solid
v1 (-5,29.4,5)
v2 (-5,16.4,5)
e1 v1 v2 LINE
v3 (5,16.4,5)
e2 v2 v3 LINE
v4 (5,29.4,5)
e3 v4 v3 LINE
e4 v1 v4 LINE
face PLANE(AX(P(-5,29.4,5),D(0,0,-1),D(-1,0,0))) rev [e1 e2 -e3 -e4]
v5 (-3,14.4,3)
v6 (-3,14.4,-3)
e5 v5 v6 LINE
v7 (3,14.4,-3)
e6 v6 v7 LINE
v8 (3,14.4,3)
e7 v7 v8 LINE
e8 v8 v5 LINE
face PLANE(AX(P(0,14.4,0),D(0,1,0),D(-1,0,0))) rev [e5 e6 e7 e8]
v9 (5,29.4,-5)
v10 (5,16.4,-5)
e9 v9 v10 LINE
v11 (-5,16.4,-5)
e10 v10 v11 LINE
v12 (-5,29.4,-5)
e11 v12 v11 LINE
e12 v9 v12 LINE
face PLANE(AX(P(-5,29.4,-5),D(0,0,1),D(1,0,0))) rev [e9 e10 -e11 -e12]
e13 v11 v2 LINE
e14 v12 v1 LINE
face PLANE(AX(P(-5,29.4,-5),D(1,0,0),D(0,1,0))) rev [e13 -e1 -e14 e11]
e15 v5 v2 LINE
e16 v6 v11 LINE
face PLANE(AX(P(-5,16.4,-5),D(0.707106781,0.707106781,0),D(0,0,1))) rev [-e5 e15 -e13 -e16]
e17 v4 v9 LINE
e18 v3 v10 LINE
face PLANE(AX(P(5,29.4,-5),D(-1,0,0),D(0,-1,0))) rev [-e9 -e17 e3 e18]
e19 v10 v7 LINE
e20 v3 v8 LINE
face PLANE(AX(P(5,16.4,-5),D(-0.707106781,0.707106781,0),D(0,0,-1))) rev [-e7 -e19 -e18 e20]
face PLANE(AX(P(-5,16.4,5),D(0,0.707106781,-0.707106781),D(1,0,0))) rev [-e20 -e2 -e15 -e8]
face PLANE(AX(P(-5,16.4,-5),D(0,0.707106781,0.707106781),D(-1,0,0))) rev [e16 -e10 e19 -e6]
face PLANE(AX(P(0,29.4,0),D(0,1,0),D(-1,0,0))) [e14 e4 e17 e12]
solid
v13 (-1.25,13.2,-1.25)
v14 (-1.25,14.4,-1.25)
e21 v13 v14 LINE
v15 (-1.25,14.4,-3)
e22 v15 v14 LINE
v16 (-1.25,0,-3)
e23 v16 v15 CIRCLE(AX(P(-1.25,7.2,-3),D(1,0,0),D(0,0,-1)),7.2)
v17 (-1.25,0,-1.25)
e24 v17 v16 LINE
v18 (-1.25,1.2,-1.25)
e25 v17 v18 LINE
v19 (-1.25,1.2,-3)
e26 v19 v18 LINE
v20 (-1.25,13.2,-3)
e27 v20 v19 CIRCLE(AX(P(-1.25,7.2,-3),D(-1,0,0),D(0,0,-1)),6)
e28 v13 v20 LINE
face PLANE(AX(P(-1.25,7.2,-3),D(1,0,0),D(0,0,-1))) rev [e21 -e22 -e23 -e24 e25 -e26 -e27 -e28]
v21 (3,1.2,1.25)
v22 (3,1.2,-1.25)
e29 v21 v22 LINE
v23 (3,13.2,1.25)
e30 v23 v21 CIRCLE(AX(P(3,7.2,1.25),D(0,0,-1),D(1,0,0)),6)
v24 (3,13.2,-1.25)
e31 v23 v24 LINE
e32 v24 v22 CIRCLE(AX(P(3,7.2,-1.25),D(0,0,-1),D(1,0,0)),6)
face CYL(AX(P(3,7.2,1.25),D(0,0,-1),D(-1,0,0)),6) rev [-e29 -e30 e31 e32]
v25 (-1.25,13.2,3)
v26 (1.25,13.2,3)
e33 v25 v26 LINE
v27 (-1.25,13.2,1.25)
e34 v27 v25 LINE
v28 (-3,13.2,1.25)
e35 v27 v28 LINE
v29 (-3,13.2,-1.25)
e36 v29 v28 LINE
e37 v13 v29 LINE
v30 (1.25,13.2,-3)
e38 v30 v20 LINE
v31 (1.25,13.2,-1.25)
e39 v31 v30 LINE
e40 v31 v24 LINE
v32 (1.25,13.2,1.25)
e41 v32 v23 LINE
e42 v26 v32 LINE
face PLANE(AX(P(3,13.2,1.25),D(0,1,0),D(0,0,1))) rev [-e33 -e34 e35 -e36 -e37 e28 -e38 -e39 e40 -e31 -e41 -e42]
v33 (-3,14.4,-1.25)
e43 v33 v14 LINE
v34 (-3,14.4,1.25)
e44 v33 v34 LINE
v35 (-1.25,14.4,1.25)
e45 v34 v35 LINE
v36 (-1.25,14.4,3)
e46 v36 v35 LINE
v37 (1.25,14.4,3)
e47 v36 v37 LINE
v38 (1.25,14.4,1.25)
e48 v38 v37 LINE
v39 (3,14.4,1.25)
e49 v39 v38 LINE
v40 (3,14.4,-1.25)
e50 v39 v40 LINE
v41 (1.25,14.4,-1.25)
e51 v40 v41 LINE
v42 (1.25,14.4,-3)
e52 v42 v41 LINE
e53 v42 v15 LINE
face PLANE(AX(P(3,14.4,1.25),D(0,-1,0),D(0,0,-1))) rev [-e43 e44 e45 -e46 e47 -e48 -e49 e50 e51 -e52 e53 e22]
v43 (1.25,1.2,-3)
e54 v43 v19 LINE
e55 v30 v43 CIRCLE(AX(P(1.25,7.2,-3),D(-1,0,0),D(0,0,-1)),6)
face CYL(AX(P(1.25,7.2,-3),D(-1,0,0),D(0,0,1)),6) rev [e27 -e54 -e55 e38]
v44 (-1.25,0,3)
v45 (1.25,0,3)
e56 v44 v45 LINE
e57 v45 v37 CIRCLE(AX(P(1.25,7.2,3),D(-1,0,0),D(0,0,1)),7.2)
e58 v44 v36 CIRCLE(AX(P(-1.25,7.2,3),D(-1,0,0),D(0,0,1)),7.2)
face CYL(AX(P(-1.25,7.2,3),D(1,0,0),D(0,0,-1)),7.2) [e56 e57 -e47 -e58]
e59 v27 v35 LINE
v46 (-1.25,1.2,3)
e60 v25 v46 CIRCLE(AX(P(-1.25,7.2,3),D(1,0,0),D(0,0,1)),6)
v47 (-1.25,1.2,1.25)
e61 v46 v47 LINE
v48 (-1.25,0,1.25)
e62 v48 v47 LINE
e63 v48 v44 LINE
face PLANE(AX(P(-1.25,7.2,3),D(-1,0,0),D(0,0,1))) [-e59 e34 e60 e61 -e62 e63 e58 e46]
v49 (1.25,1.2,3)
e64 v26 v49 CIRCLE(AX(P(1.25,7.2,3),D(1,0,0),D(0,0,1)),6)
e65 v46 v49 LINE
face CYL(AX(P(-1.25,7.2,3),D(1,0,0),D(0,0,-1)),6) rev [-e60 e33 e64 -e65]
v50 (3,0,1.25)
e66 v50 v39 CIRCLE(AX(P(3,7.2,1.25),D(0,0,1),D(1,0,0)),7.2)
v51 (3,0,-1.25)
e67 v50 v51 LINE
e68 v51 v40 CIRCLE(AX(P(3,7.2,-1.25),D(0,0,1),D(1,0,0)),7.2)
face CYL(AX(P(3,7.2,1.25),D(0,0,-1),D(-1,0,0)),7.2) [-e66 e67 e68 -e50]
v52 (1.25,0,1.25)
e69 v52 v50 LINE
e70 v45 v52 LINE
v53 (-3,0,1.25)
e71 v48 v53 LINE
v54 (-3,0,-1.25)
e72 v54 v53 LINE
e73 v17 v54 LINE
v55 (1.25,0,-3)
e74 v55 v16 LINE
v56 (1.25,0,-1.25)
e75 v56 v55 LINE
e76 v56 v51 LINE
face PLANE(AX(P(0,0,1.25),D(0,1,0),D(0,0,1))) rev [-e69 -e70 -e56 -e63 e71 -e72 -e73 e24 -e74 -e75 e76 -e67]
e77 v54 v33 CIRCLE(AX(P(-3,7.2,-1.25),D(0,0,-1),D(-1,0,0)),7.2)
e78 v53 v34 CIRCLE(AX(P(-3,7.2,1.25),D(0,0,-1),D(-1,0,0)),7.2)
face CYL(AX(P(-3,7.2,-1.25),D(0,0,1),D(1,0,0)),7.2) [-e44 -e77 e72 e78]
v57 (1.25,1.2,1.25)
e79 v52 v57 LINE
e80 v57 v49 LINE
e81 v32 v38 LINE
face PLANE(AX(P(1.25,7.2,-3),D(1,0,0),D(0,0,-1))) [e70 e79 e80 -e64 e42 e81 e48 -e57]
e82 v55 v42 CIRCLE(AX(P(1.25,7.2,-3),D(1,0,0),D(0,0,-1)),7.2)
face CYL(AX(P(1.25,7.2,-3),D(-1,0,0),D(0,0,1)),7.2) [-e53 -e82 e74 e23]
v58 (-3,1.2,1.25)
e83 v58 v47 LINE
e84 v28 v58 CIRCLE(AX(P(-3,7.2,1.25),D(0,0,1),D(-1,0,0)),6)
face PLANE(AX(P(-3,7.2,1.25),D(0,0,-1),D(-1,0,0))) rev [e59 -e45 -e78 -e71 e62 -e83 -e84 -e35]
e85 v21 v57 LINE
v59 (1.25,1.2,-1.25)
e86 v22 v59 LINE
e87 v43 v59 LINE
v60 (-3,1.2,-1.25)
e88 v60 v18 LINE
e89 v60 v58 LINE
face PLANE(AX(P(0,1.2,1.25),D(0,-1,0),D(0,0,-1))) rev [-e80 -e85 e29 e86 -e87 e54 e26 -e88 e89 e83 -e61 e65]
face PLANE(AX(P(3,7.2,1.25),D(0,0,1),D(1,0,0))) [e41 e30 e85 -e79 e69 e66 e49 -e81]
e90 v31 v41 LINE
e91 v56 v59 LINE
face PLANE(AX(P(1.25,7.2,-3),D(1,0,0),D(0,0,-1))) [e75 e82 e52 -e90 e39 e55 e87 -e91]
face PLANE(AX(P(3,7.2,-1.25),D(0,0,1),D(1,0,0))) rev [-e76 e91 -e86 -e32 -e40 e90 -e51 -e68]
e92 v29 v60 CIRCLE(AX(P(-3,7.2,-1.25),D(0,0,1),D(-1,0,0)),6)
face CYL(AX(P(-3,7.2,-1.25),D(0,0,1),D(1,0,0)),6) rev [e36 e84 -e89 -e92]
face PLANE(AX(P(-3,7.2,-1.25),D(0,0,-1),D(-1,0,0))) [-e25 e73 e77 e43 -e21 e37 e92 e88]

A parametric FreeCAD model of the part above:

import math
import FreeCAD as App
import Part
import Sketcher
from FreeCAD import Vector
Q = App.Units.Quantity


def edges_at(feature, points):
    """Names of the edges that pass closest to the given points."""
    edges = feature.Shape.Edges
    near = lambda p: min(range(len(edges)), key=lambda i: edges[i].distToShape(Part.Vertex(*p))[0])
    return sorted({f"Edge{near(p) + 1}" for p in points})

doc = App.newDocument("Part")
params = doc.addObject("Spreadsheet::Sheet", "Params")
for row, (alias, value) in enumerate([
    ("sketch1_radius", "6 mm"),
    ("sketch1_radius2", "7.2 mm"),
    ("sketch1_width", "3 mm"),
    ("pad1_length", "2.5 mm"),
    ("sketch2_width", "10 mm"),
    ("pad2_length", "15 mm"),
    ("chamfer_size", "2 mm"),
], start=1):
    params.set(f"A{row}", alias)
    params.set(f"B{row}", "=" + value)
    params.setAlias(f"B{row}", alias)

body = doc.addObject("PartDesign::Body", "Body")

sketch1 = doc.addObject("Sketcher::SketchObject", "Sketch")
body.addObject(sketch1)
sketch1.AttachmentSupport = (doc.XY_Plane, [""])
sketch1.MapMode = "FlatFace"
sketch1.addGeometry([
    Part.LineSegment(Vector(0, 0, 0), Vector(3, 0, 0)),
    Part.ArcOfCircle(Part.Circle(Vector(3, 7.2, 0), Vector(0, 0, 1), 7.2), math.radians(-90), math.radians(90)),
    Part.LineSegment(Vector(3, 14.4, 0), Vector(0, 14.4, 0)),
    Part.LineSegment(Vector(0, 14.4, 0), Vector(0, 13.2, 0)),
    Part.LineSegment(Vector(0, 13.2, 0), Vector(3, 13.2, 0)),
    Part.ArcOfCircle(Part.Circle(Vector(3, 7.2, 0), Vector(0, 0, 1), 6), math.radians(-90), math.radians(90)),
    Part.LineSegment(Vector(3, 1.2, 0), Vector(0, 1.2, 0)),
    Part.LineSegment(Vector(0, 1.2, 0), Vector(0, 0, 0)),
], False)
sketch1.addConstraint([
    Sketcher.Constraint("Tangent", 0, 2, 1, 1),
    Sketcher.Constraint("Tangent", 1, 2, 2, 1),
    Sketcher.Constraint("Coincident", 2, 2, 3, 1),
    Sketcher.Constraint("Coincident", 3, 2, 4, 1),
    Sketcher.Constraint("Tangent", 4, 2, 5, 2),
    Sketcher.Constraint("Tangent", 5, 1, 6, 1),
    Sketcher.Constraint("Coincident", 6, 2, 7, 1),
    Sketcher.Constraint("Coincident", 7, 2, 0, 1),
    Sketcher.Constraint("Horizontal", 0),
    Sketcher.Constraint("Horizontal", 2),
    Sketcher.Constraint("Vertical", 3),
    Sketcher.Constraint("Horizontal", 4),
    Sketcher.Constraint("Horizontal", 6),
    Sketcher.Constraint("Vertical", 7),
    Sketcher.Constraint("Coincident", 7, 2, -1, 1),
    Sketcher.Constraint("Coincident", 5, 3, 1, 3),
    Sketcher.Constraint("PointOnObject", 2, 2, -2),
    Sketcher.Constraint("Radius", 5, Q("6 mm")),
    Sketcher.Constraint("Radius", 1, Q("7.2 mm")),
    Sketcher.Constraint("DistanceX", 0, 1, 0, 2, Q("3 mm")),
])
sketch1.setExpression("Constraints[17]", "Params.sketch1_radius")
sketch1.setExpression("Constraints[18]", "Params.sketch1_radius2")
sketch1.setExpression("Constraints[19]", "Params.sketch1_width")
pad1 = doc.addObject("PartDesign::Pad", "Pad")
body.addObject(pad1)
pad1.Profile = sketch1
pad1.setExpression("Length", "Params.pad1_length")
pad1.Midplane = True
doc.recompute()

polarpattern = doc.addObject("PartDesign::PolarPattern", "PolarPattern")
body.addObject(polarpattern)
polarpattern.Originals = [pad1]
polarpattern.Axis = (doc.Y_Axis, [""])
polarpattern.Angle = 360
polarpattern.Occurrences = 4
body.Tip = polarpattern
body2 = doc.addObject("PartDesign::Body", "Body001")

sketch2 = doc.addObject("Sketcher::SketchObject", "Sketch001")
body2.addObject(sketch2)
sketch2.AttachmentSupport = (doc.getObject("XZ_Plane001"), [""])
sketch2.MapMode = "FlatFace"
sketch2.AttachmentOffset = App.Placement(Vector(0, 0, -14.4), App.Rotation())
sketch2.addGeometry([
    Part.LineSegment(Vector(-5, -5, 0), Vector(-5, 5, 0)),
    Part.LineSegment(Vector(-5, 5, 0), Vector(5, 5, 0)),
    Part.LineSegment(Vector(5, 5, 0), Vector(5, -5, 0)),
    Part.LineSegment(Vector(5, -5, 0), Vector(-5, -5, 0)),
], False)
sketch2.addConstraint([
    Sketcher.Constraint("Coincident", 0, 2, 1, 1),
    Sketcher.Constraint("Coincident", 1, 2, 2, 1),
    Sketcher.Constraint("Coincident", 2, 2, 3, 1),
    Sketcher.Constraint("Coincident", 3, 2, 0, 1),
    Sketcher.Constraint("Vertical", 0),
    Sketcher.Constraint("Horizontal", 1),
    Sketcher.Constraint("Vertical", 2),
    Sketcher.Constraint("Horizontal", 3),
    Sketcher.Constraint("Symmetric", 0, 2, 2, 2, -1, 1),
    Sketcher.Constraint("Equal", 3, 0),
    Sketcher.Constraint("DistanceX", 1, 1, 1, 2, Q("10 mm")),
])
sketch2.setExpression("Constraints[10]", "Params.sketch2_width")
pad2 = doc.addObject("PartDesign::Pad", "Pad001")
body2.addObject(pad2)
pad2.Profile = sketch2
pad2.setExpression("Length", "Params.pad2_length")
pad2.Reversed = True
doc.recompute()

chamfer = doc.addObject("PartDesign::Chamfer", "Chamfer")
body2.addObject(chamfer)
chamfer.Base = (pad2, edges_at(pad2, [
    (0, 14.4, 5),
    (-5, 14.4, 0),
    (0, 14.4, -5),
    (5, 14.4, 0),
]))
chamfer.setExpression("Size", "Params.chamfer_size")

doc.recompute()
